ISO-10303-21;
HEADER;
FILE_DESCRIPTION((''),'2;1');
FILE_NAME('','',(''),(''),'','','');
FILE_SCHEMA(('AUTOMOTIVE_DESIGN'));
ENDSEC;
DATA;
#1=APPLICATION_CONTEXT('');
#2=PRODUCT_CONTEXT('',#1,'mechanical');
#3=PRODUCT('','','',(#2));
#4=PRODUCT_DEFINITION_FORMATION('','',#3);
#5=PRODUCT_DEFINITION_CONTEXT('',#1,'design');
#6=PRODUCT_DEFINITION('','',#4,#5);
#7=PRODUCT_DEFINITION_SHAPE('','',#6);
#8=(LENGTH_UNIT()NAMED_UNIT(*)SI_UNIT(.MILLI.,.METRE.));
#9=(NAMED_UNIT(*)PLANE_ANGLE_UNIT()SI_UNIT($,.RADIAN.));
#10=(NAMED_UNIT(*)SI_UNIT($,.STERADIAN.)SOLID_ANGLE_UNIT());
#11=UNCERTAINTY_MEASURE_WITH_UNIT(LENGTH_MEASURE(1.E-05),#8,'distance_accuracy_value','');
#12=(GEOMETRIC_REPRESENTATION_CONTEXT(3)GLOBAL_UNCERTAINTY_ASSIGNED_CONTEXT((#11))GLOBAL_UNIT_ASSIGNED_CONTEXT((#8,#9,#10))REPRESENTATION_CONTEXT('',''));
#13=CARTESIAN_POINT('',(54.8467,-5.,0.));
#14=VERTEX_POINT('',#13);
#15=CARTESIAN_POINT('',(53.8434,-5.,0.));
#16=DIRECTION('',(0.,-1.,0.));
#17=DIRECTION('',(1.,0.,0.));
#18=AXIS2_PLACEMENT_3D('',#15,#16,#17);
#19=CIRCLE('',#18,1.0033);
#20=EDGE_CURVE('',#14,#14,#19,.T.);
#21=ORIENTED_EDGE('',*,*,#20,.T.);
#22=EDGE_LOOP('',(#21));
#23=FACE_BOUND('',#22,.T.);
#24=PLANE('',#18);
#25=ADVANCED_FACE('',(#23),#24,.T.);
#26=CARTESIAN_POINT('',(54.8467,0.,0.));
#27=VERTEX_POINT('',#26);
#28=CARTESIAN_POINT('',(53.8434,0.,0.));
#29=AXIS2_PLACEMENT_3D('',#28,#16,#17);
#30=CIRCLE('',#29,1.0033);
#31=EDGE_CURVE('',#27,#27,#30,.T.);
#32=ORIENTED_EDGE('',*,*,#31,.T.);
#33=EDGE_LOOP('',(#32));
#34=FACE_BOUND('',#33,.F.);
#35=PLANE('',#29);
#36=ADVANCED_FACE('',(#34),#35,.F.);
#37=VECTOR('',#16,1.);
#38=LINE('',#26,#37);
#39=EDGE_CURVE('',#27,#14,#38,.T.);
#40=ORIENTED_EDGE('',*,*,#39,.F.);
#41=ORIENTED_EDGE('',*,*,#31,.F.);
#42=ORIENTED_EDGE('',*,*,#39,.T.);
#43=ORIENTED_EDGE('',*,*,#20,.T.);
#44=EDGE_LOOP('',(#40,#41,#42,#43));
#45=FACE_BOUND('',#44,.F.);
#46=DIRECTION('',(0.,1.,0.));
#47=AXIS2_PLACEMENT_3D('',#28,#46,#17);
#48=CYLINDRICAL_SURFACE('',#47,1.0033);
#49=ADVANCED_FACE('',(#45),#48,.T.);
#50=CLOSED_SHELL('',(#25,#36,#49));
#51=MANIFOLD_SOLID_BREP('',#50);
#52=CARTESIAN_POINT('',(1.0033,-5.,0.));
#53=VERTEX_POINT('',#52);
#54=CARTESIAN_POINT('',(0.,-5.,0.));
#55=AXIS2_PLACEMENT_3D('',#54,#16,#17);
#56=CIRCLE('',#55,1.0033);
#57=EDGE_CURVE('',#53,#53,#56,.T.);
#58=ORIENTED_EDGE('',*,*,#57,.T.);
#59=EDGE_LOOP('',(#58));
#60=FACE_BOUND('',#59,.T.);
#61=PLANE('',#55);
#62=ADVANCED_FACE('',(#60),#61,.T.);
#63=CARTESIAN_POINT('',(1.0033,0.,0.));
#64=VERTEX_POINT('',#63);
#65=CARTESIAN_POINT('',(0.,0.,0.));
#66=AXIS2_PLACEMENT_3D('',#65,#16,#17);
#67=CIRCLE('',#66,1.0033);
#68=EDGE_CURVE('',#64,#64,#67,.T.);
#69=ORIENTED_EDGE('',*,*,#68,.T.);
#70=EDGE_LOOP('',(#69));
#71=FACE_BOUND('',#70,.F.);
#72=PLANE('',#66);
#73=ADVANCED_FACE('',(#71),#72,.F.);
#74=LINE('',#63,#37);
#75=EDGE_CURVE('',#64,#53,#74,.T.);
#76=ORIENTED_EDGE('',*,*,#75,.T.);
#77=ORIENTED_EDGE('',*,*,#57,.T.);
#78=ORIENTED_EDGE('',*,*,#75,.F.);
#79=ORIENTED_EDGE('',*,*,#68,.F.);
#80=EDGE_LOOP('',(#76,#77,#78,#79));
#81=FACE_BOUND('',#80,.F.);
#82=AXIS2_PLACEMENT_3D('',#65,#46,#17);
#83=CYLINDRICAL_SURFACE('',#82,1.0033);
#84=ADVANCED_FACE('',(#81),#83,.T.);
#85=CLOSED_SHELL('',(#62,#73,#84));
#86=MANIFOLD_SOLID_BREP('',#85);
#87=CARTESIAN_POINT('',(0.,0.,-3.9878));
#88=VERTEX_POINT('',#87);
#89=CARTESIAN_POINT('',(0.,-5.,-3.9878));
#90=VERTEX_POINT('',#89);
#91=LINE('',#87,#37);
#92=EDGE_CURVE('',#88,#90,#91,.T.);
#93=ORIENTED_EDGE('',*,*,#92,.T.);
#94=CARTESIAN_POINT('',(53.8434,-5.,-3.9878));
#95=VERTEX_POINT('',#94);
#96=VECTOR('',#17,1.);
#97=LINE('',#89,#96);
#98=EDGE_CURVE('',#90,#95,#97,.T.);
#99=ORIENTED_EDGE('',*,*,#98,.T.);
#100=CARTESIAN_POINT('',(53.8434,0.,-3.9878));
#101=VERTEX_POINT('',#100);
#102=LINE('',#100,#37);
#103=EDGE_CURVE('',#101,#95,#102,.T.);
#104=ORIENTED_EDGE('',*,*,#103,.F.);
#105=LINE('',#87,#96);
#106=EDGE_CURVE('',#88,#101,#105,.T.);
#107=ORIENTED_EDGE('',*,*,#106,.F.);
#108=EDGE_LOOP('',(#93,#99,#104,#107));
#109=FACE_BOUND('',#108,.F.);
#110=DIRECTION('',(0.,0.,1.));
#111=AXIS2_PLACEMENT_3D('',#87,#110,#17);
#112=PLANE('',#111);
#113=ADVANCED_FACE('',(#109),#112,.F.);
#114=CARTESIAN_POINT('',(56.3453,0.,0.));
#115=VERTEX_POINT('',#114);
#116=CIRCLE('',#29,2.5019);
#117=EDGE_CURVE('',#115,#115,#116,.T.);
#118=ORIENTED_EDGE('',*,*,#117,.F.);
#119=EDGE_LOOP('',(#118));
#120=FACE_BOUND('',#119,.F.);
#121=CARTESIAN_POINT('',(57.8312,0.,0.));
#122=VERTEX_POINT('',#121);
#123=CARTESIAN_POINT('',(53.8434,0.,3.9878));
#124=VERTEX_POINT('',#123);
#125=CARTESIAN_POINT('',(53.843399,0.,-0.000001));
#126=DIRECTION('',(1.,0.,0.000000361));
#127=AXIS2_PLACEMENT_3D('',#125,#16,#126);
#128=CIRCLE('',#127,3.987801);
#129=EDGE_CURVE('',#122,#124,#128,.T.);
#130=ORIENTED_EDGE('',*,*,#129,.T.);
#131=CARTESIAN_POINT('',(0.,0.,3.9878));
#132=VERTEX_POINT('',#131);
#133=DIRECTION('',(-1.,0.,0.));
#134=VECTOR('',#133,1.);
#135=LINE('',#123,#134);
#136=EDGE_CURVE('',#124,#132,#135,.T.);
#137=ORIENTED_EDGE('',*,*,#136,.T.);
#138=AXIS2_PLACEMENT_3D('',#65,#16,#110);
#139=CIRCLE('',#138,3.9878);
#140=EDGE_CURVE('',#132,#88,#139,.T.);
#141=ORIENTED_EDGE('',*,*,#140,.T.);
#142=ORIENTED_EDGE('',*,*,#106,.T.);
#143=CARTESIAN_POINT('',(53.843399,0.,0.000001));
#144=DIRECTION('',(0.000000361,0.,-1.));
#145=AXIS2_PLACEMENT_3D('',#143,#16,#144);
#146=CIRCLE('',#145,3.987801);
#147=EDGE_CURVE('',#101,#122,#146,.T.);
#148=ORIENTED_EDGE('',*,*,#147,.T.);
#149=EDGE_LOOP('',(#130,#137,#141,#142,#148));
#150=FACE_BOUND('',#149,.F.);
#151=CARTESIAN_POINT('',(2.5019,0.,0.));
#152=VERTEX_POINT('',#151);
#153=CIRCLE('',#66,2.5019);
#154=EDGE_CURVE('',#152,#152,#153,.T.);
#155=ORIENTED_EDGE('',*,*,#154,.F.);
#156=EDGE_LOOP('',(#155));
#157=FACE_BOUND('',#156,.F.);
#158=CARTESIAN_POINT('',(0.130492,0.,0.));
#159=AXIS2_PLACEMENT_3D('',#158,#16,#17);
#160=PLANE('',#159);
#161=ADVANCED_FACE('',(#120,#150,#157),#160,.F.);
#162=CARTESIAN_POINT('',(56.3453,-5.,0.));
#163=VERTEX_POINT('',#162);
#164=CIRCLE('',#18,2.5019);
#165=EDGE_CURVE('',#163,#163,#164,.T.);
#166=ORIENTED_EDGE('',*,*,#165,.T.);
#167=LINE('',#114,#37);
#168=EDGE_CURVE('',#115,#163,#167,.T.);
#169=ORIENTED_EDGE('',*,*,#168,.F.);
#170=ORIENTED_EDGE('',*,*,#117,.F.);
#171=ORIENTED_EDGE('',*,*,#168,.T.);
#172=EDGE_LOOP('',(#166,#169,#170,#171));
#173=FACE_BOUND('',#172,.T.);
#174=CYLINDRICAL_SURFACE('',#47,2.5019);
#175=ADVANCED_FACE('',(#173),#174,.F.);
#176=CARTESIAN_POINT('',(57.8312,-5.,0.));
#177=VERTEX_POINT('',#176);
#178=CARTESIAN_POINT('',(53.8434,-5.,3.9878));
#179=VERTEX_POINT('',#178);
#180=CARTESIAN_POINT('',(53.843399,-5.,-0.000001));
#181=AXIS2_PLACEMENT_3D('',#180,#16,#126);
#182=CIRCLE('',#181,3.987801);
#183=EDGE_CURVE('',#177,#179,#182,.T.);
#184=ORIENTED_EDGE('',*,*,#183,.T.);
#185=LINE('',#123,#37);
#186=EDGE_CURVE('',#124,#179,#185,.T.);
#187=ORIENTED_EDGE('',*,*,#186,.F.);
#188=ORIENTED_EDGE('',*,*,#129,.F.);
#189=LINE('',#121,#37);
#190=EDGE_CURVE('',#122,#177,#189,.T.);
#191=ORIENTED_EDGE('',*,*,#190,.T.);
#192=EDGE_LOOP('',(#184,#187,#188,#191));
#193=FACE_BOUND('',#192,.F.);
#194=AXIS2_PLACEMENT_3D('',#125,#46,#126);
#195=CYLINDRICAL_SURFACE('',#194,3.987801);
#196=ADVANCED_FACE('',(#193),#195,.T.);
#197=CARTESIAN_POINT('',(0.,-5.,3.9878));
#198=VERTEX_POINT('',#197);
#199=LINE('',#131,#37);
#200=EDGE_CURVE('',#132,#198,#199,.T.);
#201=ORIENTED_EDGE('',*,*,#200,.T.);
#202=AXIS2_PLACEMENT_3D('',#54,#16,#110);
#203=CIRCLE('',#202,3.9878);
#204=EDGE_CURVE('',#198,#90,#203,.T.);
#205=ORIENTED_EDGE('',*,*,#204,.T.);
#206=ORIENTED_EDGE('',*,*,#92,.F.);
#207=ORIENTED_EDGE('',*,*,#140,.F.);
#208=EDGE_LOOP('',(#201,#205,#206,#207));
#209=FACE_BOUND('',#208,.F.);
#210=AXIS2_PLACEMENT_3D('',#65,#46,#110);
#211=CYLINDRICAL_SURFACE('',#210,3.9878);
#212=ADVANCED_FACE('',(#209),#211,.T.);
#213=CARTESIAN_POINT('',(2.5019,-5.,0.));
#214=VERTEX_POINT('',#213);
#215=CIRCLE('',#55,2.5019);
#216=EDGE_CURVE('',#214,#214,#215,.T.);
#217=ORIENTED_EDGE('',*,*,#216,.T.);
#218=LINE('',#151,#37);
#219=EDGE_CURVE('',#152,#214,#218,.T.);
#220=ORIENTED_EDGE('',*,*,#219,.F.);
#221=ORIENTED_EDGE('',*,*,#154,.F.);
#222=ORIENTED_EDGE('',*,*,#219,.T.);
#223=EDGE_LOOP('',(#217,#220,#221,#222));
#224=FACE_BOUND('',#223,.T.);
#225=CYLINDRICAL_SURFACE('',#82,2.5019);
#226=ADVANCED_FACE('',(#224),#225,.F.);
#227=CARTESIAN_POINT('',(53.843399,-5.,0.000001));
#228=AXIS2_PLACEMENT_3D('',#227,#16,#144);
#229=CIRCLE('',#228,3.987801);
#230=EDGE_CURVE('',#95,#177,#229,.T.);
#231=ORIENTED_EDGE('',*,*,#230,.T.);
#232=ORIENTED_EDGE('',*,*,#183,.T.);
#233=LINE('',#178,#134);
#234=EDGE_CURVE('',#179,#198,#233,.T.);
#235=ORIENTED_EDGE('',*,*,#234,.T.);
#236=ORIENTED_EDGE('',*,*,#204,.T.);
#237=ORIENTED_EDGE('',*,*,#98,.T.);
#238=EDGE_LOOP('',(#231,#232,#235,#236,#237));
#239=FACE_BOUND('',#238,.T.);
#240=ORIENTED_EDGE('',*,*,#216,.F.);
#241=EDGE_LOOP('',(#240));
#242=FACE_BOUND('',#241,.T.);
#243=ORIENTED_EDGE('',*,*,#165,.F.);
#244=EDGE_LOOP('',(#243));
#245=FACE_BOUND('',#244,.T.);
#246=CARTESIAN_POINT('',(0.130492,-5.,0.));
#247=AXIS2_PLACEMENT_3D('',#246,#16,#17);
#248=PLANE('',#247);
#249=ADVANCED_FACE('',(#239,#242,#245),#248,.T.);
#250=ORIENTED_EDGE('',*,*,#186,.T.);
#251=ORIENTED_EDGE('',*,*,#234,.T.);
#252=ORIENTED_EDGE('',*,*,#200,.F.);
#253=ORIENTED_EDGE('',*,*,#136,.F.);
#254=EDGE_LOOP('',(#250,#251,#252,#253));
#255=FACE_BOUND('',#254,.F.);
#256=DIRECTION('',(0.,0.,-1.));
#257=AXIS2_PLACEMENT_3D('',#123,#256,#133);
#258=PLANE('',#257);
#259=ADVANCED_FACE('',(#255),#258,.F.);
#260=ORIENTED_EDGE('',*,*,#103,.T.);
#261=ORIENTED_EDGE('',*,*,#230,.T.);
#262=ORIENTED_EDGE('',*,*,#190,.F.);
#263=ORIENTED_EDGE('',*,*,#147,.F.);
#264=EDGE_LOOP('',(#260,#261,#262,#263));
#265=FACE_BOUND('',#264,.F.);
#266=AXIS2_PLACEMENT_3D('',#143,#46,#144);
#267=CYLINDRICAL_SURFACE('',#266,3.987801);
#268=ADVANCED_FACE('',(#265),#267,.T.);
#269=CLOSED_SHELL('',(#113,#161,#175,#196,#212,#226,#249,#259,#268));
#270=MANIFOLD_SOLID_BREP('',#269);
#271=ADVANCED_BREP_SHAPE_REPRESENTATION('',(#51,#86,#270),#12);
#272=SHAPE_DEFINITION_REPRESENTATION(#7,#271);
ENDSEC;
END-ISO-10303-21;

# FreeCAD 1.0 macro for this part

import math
import FreeCAD as App
import Part
import Sketcher
from FreeCAD import Vector
Q = App.Units.Quantity

doc = App.newDocument("Part")
body = doc.addObject("PartDesign::Body", "Body")
body.AllowCompound = True

sketch1 = body.newObject("Sketcher::SketchObject", "Sketch")
sketch1.AttachmentSupport = (doc.getObject("XZ_Plane"), [""])
sketch1.MapMode = "FlatFace"
sketch1.addGeometry([
    Part.LineSegment(Vector(53.8434, 3.9878, 0), Vector(0, 3.9878, 0)),
    Part.ArcOfCircle(Part.Circle(Vector(0, 0, 0), Vector(0, 0, 1), 3.9878), math.radians(90), math.radians(270)),
    Part.LineSegment(Vector(0, -3.9878, 0), Vector(53.8434, -3.9878, 0)),
    Part.ArcOfCircle(Part.Circle(Vector(53.843399, 0.000001, 0), Vector(0, 0, 1), 3.987801), math.radians(-89.999979), math.radians(-0.000021)),
    Part.ArcOfCircle(Part.Circle(Vector(53.843399, -0.000001, 0), Vector(0, 0, 1), 3.987801), math.radians(0.000021), math.radians(89.999979)),
    Part.Circle(Vector(0, 0, 0), Vector(0, 0, 1), 2.5019),
    Part.Circle(Vector(53.8434, 0, 0), Vector(0, 0, 1), 2.5019),
    Part.Circle(Vector(0, 0, 0), Vector(0, 0, 1), 1.0033),
    Part.Circle(Vector(53.8434, 0, 0), Vector(0, 0, 1), 1.0033),
], False)
sketch1.addConstraint([
    Sketcher.Constraint("Tangent", 0, 2, 1, 1),
    Sketcher.Constraint("Tangent", 1, 2, 2, 1),
    Sketcher.Constraint("Tangent", 2, 2, 3, 1),
    Sketcher.Constraint("Tangent", 3, 2, 4, 1),
    Sketcher.Constraint("Tangent", 4, 2, 0, 1),
    Sketcher.Constraint("Horizontal", 0),
    Sketcher.Constraint("Horizontal", 2),
    Sketcher.Constraint("Coincident", 1, 3, -1, 1),
    Sketcher.Constraint("Coincident", 5, 3, -1, 1),
    Sketcher.Constraint("Coincident", 7, 3, -1, 1),
    Sketcher.Constraint("Coincident", 6, 3, 3, 3),
    Sketcher.Constraint("Coincident", 8, 3, 3, 3),
    Sketcher.Constraint("Equal", 1, 3),
    Sketcher.Constraint("Equal", 5, 6),
    Sketcher.Constraint("Equal", 7, 8),
    Sketcher.Constraint("PointOnObject", 3, 2, -1),
    Sketcher.Constraint("Diameter", 5, Q("0.197 in")),
    Sketcher.Constraint("Diameter", 7, Q("0.079 in")),
    Sketcher.Constraint("Radius", 1, Q("0.157 in")),
    Sketcher.Constraint("DistanceX", 0, 2, 0, 1, Q("53.8434 mm")),
])
pad1 = body.newObject("PartDesign::Pad", "Pad")
pad1.Profile = sketch1
pad1.Length = 5

doc.recompute()
